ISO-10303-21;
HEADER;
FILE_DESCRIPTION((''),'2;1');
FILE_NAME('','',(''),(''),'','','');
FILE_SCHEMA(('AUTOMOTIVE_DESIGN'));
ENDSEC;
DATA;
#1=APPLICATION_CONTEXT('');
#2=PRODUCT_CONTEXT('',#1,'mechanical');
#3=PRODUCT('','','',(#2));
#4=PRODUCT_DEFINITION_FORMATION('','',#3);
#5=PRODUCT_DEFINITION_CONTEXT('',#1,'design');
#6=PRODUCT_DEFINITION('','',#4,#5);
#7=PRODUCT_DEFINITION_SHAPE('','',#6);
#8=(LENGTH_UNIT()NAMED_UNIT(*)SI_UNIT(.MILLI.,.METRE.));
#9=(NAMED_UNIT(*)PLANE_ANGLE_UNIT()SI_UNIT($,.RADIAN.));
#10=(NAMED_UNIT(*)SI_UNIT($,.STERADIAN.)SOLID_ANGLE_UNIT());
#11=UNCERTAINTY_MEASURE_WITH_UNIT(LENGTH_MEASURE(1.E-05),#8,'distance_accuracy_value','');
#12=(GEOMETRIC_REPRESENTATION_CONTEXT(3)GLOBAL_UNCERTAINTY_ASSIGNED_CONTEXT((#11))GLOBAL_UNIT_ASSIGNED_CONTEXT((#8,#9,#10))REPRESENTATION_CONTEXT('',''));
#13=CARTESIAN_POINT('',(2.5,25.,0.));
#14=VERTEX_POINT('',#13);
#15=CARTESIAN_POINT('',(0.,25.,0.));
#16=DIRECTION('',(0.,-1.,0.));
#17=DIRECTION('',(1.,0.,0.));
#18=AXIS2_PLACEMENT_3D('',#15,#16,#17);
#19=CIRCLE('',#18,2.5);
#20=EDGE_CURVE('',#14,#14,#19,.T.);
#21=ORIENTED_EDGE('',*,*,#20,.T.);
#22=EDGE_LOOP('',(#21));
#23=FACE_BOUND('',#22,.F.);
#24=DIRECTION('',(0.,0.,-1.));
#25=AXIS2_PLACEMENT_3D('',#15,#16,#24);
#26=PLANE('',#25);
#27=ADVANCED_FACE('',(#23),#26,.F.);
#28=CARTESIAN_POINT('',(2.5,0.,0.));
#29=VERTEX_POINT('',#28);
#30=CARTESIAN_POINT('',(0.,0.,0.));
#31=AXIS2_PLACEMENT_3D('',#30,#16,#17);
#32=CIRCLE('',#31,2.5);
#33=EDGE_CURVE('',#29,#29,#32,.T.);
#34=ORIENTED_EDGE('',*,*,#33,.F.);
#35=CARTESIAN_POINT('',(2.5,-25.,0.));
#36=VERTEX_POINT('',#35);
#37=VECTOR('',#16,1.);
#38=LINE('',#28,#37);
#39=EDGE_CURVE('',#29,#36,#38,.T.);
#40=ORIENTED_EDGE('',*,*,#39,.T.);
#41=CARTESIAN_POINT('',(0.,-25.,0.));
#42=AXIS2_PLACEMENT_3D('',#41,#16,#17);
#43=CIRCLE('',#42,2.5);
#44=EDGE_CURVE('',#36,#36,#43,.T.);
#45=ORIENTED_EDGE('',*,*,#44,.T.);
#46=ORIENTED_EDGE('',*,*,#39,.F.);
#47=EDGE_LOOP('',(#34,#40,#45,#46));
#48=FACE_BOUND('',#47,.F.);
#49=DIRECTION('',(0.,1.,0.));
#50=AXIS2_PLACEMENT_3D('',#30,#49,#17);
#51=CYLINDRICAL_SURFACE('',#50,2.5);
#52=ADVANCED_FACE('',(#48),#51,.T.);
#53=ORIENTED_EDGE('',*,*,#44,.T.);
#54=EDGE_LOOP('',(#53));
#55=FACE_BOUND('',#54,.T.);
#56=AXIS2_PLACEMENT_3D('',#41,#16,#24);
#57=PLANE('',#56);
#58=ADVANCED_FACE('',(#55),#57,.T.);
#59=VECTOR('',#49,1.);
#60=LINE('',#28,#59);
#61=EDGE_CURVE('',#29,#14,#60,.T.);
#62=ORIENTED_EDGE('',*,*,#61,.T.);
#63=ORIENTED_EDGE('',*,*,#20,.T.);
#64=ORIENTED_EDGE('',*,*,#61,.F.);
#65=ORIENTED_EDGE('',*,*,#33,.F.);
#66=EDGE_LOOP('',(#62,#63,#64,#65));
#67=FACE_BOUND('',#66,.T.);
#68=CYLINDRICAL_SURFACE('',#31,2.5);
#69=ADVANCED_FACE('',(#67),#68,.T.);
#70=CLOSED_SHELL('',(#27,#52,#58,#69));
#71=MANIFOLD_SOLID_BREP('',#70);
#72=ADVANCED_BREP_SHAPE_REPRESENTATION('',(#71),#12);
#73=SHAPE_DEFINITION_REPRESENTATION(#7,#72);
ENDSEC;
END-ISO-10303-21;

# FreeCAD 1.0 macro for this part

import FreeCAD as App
import Part
import Sketcher

V = App.Vector

doc = App.newDocument("Part")
body = doc.addObject("PartDesign::Body", "Body")

sketch1 = body.newObject("Sketcher::SketchObject", "Sketch")
sketch1.AttachmentSupport = (doc.getObject("XZ_Plane"), [""])
sketch1.MapMode = "FlatFace"
sketch1.addGeometry(Part.Circle(V(0, 0, 0), V(0, 0, 1), 2.5), False)
sketch1.addConstraint([
    Sketcher.Constraint("Coincident", 0, 3, -1, 1),
    Sketcher.Constraint("Diameter", 0, 5.0),
])
pad1 = body.newObject("PartDesign::Pad", "Pad")
pad1.Profile = sketch1
pad1.Length = 50
pad1.Midplane = True

doc.recompute()
